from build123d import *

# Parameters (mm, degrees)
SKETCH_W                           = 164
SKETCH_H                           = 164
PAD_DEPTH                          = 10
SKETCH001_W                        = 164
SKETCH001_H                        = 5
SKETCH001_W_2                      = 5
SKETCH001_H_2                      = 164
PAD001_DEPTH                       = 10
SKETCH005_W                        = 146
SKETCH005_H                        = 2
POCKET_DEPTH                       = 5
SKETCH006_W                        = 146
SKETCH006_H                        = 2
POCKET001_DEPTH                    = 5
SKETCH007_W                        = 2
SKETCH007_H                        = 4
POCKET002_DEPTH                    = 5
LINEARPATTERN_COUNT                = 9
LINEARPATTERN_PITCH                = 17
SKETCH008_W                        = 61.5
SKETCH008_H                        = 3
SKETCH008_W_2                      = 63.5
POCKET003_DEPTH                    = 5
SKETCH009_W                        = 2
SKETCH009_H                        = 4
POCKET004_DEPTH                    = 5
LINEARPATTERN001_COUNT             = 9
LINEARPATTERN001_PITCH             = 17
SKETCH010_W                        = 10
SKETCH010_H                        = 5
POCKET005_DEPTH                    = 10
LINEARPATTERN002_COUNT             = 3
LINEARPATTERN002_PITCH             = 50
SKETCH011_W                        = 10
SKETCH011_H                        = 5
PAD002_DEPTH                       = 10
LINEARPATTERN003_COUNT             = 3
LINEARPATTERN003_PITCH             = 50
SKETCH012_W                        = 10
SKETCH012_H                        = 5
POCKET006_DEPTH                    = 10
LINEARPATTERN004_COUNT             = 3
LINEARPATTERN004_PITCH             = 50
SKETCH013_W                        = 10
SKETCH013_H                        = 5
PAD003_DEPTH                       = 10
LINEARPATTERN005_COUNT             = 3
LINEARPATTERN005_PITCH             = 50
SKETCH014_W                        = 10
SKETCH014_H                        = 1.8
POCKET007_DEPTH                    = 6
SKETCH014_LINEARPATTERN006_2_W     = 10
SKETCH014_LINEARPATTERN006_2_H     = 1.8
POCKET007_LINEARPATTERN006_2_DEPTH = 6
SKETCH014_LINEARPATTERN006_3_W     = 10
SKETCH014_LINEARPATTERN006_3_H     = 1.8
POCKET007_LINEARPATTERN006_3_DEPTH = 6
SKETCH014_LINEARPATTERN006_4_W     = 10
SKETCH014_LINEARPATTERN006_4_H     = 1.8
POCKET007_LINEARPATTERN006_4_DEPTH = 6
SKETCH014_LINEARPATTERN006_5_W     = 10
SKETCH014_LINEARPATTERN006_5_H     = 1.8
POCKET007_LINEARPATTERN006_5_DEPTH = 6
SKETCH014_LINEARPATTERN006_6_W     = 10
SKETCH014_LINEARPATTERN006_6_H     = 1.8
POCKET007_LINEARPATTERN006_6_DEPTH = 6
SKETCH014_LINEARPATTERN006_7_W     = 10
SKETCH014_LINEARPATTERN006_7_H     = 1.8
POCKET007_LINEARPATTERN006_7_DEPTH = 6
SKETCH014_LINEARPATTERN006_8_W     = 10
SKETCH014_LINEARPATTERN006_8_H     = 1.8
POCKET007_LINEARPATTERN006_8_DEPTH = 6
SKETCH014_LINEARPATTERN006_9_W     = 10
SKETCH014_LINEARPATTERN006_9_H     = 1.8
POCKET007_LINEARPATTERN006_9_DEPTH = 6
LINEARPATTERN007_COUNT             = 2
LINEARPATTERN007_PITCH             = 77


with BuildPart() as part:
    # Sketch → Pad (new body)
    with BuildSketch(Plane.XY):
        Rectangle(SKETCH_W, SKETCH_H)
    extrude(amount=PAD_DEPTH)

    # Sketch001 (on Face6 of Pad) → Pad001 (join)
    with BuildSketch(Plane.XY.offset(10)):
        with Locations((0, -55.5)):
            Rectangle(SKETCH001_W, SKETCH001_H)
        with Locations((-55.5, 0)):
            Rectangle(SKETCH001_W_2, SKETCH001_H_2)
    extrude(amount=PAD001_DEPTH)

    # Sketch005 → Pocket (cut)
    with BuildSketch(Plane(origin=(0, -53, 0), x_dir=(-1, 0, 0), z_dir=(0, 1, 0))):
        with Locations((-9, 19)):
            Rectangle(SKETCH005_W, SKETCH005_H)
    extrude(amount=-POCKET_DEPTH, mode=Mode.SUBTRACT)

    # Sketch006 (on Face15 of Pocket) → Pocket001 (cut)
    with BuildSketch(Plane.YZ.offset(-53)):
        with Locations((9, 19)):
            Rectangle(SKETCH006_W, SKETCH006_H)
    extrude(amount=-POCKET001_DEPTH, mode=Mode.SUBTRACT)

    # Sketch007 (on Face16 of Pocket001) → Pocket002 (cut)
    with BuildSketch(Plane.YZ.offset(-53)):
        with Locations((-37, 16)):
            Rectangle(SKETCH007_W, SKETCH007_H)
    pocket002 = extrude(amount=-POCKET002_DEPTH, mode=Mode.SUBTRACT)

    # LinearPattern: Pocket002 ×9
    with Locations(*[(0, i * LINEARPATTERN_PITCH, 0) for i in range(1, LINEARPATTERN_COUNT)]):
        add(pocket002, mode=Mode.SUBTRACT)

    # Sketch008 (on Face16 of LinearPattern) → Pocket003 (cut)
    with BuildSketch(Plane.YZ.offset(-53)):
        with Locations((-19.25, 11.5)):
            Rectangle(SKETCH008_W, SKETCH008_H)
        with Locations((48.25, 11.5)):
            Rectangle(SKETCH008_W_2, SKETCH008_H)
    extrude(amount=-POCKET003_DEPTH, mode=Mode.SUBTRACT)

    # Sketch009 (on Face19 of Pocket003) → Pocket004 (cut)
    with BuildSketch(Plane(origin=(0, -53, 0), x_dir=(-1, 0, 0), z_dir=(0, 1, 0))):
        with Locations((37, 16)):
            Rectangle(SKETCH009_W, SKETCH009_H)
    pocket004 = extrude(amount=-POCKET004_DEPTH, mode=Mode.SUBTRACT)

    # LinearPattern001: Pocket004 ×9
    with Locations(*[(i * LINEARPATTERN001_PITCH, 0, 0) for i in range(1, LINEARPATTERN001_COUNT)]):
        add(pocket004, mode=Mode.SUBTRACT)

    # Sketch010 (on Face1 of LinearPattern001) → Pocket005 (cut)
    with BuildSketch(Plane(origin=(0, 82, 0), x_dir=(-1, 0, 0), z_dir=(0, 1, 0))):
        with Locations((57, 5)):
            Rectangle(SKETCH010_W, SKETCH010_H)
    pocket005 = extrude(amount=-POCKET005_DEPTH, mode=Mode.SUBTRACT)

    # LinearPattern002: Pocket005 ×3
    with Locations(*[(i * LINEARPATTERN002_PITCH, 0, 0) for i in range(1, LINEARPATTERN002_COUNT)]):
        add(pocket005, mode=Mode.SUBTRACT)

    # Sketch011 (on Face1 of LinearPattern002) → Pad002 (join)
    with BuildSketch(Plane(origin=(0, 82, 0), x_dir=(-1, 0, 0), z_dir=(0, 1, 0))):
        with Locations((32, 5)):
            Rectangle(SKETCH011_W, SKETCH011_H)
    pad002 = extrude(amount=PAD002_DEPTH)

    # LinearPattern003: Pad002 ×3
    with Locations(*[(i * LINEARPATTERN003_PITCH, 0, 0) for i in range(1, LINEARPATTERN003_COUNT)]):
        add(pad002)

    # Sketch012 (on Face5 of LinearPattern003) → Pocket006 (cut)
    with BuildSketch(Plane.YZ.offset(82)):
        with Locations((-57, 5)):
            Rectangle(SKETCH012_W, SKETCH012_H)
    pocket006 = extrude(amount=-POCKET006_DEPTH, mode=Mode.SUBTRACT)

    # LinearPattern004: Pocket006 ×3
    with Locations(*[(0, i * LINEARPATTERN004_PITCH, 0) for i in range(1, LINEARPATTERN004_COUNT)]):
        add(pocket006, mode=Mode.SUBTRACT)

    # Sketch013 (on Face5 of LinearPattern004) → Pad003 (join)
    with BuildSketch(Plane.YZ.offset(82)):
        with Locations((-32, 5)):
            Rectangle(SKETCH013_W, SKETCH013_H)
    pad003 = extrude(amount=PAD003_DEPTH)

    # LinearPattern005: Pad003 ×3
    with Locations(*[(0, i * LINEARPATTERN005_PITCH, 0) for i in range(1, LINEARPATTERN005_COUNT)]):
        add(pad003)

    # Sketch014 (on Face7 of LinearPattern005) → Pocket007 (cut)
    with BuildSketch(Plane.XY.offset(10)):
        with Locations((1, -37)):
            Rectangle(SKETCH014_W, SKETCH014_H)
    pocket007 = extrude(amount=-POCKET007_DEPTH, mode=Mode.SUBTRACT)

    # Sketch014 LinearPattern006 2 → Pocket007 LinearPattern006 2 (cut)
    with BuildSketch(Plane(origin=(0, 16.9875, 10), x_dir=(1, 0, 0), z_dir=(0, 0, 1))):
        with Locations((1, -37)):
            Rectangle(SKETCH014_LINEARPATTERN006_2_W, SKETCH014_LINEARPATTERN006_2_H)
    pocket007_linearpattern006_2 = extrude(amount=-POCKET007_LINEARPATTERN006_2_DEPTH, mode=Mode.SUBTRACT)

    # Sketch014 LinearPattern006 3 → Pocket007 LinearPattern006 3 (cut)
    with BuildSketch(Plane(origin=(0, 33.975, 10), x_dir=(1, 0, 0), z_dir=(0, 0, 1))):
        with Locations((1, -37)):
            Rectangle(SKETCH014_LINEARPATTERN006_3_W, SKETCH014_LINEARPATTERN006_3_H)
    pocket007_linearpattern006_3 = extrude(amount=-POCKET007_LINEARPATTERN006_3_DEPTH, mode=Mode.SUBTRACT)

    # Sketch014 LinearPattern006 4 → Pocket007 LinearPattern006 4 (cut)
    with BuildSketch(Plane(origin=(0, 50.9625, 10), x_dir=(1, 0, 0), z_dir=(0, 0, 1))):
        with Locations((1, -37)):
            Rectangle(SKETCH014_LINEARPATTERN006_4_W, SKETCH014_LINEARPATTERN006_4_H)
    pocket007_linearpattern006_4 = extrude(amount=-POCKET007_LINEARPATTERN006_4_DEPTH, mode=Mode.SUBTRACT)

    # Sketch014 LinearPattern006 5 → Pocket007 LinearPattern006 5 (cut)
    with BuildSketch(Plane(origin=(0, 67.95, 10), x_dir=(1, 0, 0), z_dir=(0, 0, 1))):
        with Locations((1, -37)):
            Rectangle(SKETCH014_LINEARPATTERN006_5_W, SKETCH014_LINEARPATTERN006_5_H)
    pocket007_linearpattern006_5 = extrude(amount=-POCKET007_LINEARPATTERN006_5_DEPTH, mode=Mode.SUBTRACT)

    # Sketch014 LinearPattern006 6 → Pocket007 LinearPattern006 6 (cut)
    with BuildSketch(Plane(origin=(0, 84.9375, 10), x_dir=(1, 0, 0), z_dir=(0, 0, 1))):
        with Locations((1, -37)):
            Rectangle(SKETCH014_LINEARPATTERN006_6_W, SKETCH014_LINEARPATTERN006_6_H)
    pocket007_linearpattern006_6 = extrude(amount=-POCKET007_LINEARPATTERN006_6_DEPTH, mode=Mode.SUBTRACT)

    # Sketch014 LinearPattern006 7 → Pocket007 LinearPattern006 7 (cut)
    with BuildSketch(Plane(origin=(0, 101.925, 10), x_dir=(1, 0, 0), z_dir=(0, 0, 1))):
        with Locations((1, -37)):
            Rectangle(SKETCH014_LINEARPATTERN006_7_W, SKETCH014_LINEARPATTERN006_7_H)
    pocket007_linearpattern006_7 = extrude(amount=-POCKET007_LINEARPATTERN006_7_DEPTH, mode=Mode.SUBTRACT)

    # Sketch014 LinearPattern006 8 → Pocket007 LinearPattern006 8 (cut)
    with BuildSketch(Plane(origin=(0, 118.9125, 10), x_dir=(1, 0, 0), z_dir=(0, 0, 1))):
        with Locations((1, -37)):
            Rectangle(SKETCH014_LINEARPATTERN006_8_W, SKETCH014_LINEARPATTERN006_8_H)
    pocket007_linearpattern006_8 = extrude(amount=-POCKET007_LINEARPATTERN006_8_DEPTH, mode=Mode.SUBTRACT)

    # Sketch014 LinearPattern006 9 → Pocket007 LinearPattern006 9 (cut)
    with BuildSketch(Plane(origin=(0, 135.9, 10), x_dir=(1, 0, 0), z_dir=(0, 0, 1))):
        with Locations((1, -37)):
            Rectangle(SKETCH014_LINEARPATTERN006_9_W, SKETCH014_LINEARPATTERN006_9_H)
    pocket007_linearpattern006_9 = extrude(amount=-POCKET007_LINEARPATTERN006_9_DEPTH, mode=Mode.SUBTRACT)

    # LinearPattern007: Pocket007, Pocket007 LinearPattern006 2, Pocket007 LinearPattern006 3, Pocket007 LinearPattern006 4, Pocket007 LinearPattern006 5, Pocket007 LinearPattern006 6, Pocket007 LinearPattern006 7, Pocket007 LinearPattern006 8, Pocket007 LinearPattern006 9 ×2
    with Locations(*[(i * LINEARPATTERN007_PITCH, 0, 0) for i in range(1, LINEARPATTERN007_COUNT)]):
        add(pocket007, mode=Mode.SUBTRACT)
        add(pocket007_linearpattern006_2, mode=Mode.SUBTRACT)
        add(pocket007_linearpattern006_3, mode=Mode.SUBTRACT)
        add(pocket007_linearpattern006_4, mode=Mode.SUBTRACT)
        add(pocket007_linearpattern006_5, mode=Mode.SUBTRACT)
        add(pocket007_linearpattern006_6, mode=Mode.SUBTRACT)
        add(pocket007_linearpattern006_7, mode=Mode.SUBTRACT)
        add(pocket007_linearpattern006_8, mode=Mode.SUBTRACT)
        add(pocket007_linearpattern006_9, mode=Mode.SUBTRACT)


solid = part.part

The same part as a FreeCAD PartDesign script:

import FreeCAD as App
import Part
import Sketcher
from FreeCAD import Vector
Q = App.Units.Quantity


def add_polygon(sketch, points):
    """Adds a closed chain of lines whose ends are joined by coincident constraints."""
    first, n = sketch.GeometryCount, len(points)
    for a, b in zip(points, points[1:] + points[:1]):
        sketch.addGeometry(Part.LineSegment(App.Vector(*a, 0), App.Vector(*b, 0)), False)
    for i in range(n):
        sketch.addConstraint(Sketcher.Constraint("Coincident", first + i, 2, first + (i + 1) % n, 1))

doc = App.newDocument("Part")
body = doc.addObject("PartDesign::Body", "Body")

sketch1 = body.newObject("Sketcher::SketchObject", "Sketch")
sketch1.AttachmentSupport = (doc.getObject("XY_Plane"), [""])
sketch1.MapMode = "FlatFace"
add_polygon(sketch1, [(-82, 82), (-82, -82), (82, -82), (82, 82)])
sketch1.addConstraint(Sketcher.Constraint("Vertical", 0))
sketch1.addConstraint(Sketcher.Constraint("Horizontal", 1))
sketch1.addConstraint(Sketcher.Constraint("Vertical", 2))
sketch1.addConstraint(Sketcher.Constraint("Horizontal", 3))
sketch1.addConstraint(Sketcher.Constraint("Symmetric", 0, 2, 2, 2, -1, 1))
sketch1.addConstraint(Sketcher.Constraint("Equal", 3, 0))
sketch1.addConstraint(Sketcher.Constraint("DistanceX", 1, 1, 1, 2, Q("164 mm")))
pad1 = body.newObject("PartDesign::Pad", "Pad")
pad1.Profile = sketch1
pad1.Length = 10

sketch2 = body.newObject("Sketcher::SketchObject", "Sketch001")
sketch2.AttachmentSupport = (doc.getObject("XY_Plane"), [""])
sketch2.MapMode = "FlatFace"
sketch2.AttachmentOffset = App.Placement(Vector(0, 0, 10), App.Rotation())
add_polygon(sketch2, [(-82, -53), (-82, -58), (-58, -58), (-58, -82), (-53, -82), (-53, -58), (82, -58), (82, -53), (-53, -53), (-53, 82), (-58, 82), (-58, -53)])
sketch2.addConstraint(Sketcher.Constraint("Vertical", 0))
sketch2.addConstraint(Sketcher.Constraint("Horizontal", 1))
sketch2.addConstraint(Sketcher.Constraint("Vertical", 2))
sketch2.addConstraint(Sketcher.Constraint("Horizontal", 3))
sketch2.addConstraint(Sketcher.Constraint("Vertical", 4))
sketch2.addConstraint(Sketcher.Constraint("Horizontal", 5))
sketch2.addConstraint(Sketcher.Constraint("Vertical", 6))
sketch2.addConstraint(Sketcher.Constraint("Horizontal", 7))
sketch2.addConstraint(Sketcher.Constraint("Vertical", 8))
sketch2.addConstraint(Sketcher.Constraint("Horizontal", 9))
sketch2.addConstraint(Sketcher.Constraint("Vertical", 10))
sketch2.addConstraint(Sketcher.Constraint("Horizontal", 11))
sketch2.addConstraint(Sketcher.Constraint("Symmetric", 0, 2, 5, 2, -2))
sketch2.addConstraint(Sketcher.Constraint("Symmetric", 3, 2, 8, 2, -1))
sketch2.addConstraint(Sketcher.Constraint("Horizontal", 7, 2, 10, 2))
sketch2.addConstraint(Sketcher.Constraint("Vertical", 2, 2, 9, 2))
sketch2.addConstraint(Sketcher.Constraint("Equal", 9, 0))
sketch2.addConstraint(Sketcher.Constraint("Equal", 11, 2))
sketch2.addConstraint(Sketcher.Constraint("Equal", 7, 8))
sketch2.addConstraint(Sketcher.Constraint("DistanceX", 1, 1, 1, 2, Q("24 mm")))
sketch2.addConstraint(Sketcher.Constraint("DistanceX", 3, 1, 3, 2, Q("5 mm")))
sketch2.addConstraint(Sketcher.Constraint("DistanceX", 5, 1, 5, 2, Q("135 mm")))
pad2 = body.newObject("PartDesign::Pad", "Pad001")
pad2.Profile = sketch2
pad2.Length = 10

sketch3 = body.newObject("Sketcher::SketchObject", "Sketch002")
sketch3.AttachmentSupport = (doc.getObject("XZ_Plane"), [""])
sketch3.MapMode = "FlatFace"
sketch3.AttachmentOffset = App.Placement(Vector(0, 0, 53), App.Rotation())
add_polygon(sketch3, [(82, 20), (82, 18), (-64, 18), (-64, 20)])
sketch3.addConstraint(Sketcher.Constraint("Vertical", 0))
sketch3.addConstraint(Sketcher.Constraint("Horizontal", 1))
sketch3.addConstraint(Sketcher.Constraint("Vertical", 2))
sketch3.addConstraint(Sketcher.Constraint("Horizontal", 3))
sketch3.addConstraint(Sketcher.Constraint("DistanceX", 1, 2, 1, 1, Q("146 mm")))
sketch3.addConstraint(Sketcher.Constraint("DistanceY", 0, 2, 0, 1, Q("2 mm")))
sketch3.addConstraint(Sketcher.Constraint("DistanceX", -1, 1, 0, 2, Q("82 mm")))
sketch3.addConstraint(Sketcher.Constraint("DistanceY", -1, 1, 0, 2, Q("18 mm")))
pocket1 = body.newObject("PartDesign::Pocket", "Pocket")
pocket1.Profile = sketch3
pocket1.Length = 5
pocket1.Reversed = True

sketch4 = body.newObject("Sketcher::SketchObject", "Sketch003")
sketch4.AttachmentSupport = (doc.getObject("YZ_Plane"), [""])
sketch4.MapMode = "FlatFace"
sketch4.AttachmentOffset = App.Placement(Vector(0, 0, -53), App.Rotation())
add_polygon(sketch4, [(-64, 20), (-64, 18), (82, 18), (82, 20)])
sketch4.addConstraint(Sketcher.Constraint("Vertical", 0))
sketch4.addConstraint(Sketcher.Constraint("Horizontal", 1))
sketch4.addConstraint(Sketcher.Constraint("Vertical", 2))
sketch4.addConstraint(Sketcher.Constraint("Horizontal", 3))
sketch4.addConstraint(Sketcher.Constraint("DistanceX", 1, 1, 1, 2, Q("146 mm")))
sketch4.addConstraint(Sketcher.Constraint("DistanceY", 0, 2, 0, 1, Q("2 mm")))
sketch4.addConstraint(Sketcher.Constraint("DistanceX", 0, 2, -1, 1, Q("64 mm")))
sketch4.addConstraint(Sketcher.Constraint("DistanceY", -1, 1, 0, 2, Q("18 mm")))
pocket2 = body.newObject("PartDesign::Pocket", "Pocket001")
pocket2.Profile = sketch4
pocket2.Length = 5

sketch5 = body.newObject("Sketcher::SketchObject", "Sketch004")
sketch5.AttachmentSupport = (doc.getObject("YZ_Plane"), [""])
sketch5.MapMode = "FlatFace"
sketch5.AttachmentOffset = App.Placement(Vector(0, 0, -53), App.Rotation())
add_polygon(sketch5, [(-38, 18), (-38, 14), (-36, 14), (-36, 18)])
sketch5.addConstraint(Sketcher.Constraint("Vertical", 0))
sketch5.addConstraint(Sketcher.Constraint("Horizontal", 1))
sketch5.addConstraint(Sketcher.Constraint("Vertical", 2))
sketch5.addConstraint(Sketcher.Constraint("Horizontal", 3))
sketch5.addConstraint(Sketcher.Constraint("DistanceX", 1, 1, 1, 2, Q("2 mm")))
sketch5.addConstraint(Sketcher.Constraint("DistanceY", 0, 2, 0, 1, Q("4 mm")))
sketch5.addConstraint(Sketcher.Constraint("DistanceX", 0, 2, -1, 1, Q("38 mm")))
sketch5.addConstraint(Sketcher.Constraint("DistanceY", -1, 1, 0, 2, Q("14 mm")))
pocket3 = body.newObject("PartDesign::Pocket", "Pocket002")
pocket3.Profile = sketch5
pocket3.Length = 5
doc.recompute()

linearpattern = body.newObject("PartDesign::LinearPattern", "LinearPattern")
linearpattern.Originals = [pocket3]
linearpattern.Direction = (doc.getObject("Y_Axis"), [""])
linearpattern.Mode = "offset"
linearpattern.Offset = 17
linearpattern.Occurrences = 9
body.Tip = linearpattern

sketch6 = body.newObject("Sketcher::SketchObject", "Sketch005")
sketch6.AttachmentSupport = (doc.getObject("YZ_Plane"), [""])
sketch6.MapMode = "FlatFace"
sketch6.AttachmentOffset = App.Placement(Vector(0, 0, -53), App.Rotation())
add_polygon(sketch6, [(-50, 13), (-50, 10), (11.5, 10), (11.5, 13)])
add_polygon(sketch6, [(16.5, 13), (16.5, 10), (80, 10), (80, 13)])
sketch6.addConstraint(Sketcher.Constraint("Vertical", 0))
sketch6.addConstraint(Sketcher.Constraint("Horizontal", 1))
sketch6.addConstraint(Sketcher.Constraint("Vertical", 2))
sketch6.addConstraint(Sketcher.Constraint("Horizontal", 3))
sketch6.addConstraint(Sketcher.Constraint("Vertical", 4))
sketch6.addConstraint(Sketcher.Constraint("Horizontal", 5))
sketch6.addConstraint(Sketcher.Constraint("Vertical", 6))
sketch6.addConstraint(Sketcher.Constraint("Horizontal", 7))
sketch6.addConstraint(Sketcher.Constraint("Horizontal", 1, 2, 4, 2))
sketch6.addConstraint(Sketcher.Constraint("Horizontal", 3, 2, 6, 2))
sketch6.addConstraint(Sketcher.Constraint("DistanceY", 0, 2, 0, 1, Q("3 mm")))
sketch6.addConstraint(Sketcher.Constraint("DistanceX", 1, 1, 1, 2, Q("61.5 mm")))
sketch6.addConstraint(Sketcher.Constraint("DistanceX", 5, 1, 5, 2, Q("63.5 mm")))
sketch6.addConstraint(Sketcher.Constraint("DistanceX", 0, 2, -1, 1, Q("50 mm")))
sketch6.addConstraint(Sketcher.Constraint("DistanceY", -1, 1, 0, 2, Q("10 mm")))
sketch6.addConstraint(Sketcher.Constraint("DistanceX", -1, 1, 5, 2, Q("80 mm")))
pocket4 = body.newObject("PartDesign::Pocket", "Pocket003")
pocket4.Profile = sketch6
pocket4.Length = 5

sketch7 = body.newObject("Sketcher::SketchObject", "Sketch006")
sketch7.AttachmentSupport = (doc.getObject("XZ_Plane"), [""])
sketch7.MapMode = "FlatFace"
sketch7.AttachmentOffset = App.Placement(Vector(0, 0, 53), App.Rotation())
add_polygon(sketch7, [(-36, 18), (-36, 14), (-38, 14), (-38, 18)])
sketch7.addConstraint(Sketcher.Constraint("Vertical", 0))
sketch7.addConstraint(Sketcher.Constraint("Horizontal", 1))
sketch7.addConstraint(Sketcher.Constraint("Vertical", 2))
sketch7.addConstraint(Sketcher.Constraint("Horizontal", 3))
sketch7.addConstraint(Sketcher.Constraint("DistanceX", 1, 2, 1, 1, Q("2 mm")))
sketch7.addConstraint(Sketcher.Constraint("DistanceY", 0, 2, 0, 1, Q("4 mm")))
sketch7.addConstraint(Sketcher.Constraint("DistanceX", 0, 2, -1, 1, Q("36 mm")))
sketch7.addConstraint(Sketcher.Constraint("DistanceY", -1, 1, 0, 2, Q("14 mm")))
pocket5 = body.newObject("PartDesign::Pocket", "Pocket004")
pocket5.Profile = sketch7
pocket5.Length = 5
pocket5.Reversed = True
doc.recompute()

linearpattern2 = body.newObject("PartDesign::LinearPattern", "LinearPattern001")
linearpattern2.Originals = [pocket5]
linearpattern2.Direction = (doc.getObject("X_Axis"), [""])
linearpattern2.Mode = "offset"
linearpattern2.Offset = 17
linearpattern2.Occurrences = 9
body.Tip = linearpattern2

sketch8 = body.newObject("Sketcher::SketchObject", "Sketch007")
sketch8.AttachmentSupport = (doc.getObject("XZ_Plane"), [""])
sketch8.MapMode = "FlatFace"
sketch8.AttachmentOffset = App.Placement(Vector(0, 0, -82), App.Rotation())
add_polygon(sketch8, [(-52, 8), (-52, 2), (-62, 2), (-62, 8)])
sketch8.addConstraint(Sketcher.Constraint("Vertical", 0))
sketch8.addConstraint(Sketcher.Constraint("Horizontal", 1))
sketch8.addConstraint(Sketcher.Constraint("Vertical", 2))
sketch8.addConstraint(Sketcher.Constraint("Horizontal", 3))
sketch8.addConstraint(Sketcher.Constraint("DistanceX", 1, 2, 1, 1, Q("10 mm")))
sketch8.addConstraint(Sketcher.Constraint("DistanceY", 0, 2, 0, 1, Q("5 mm")))
sketch8.addConstraint(Sketcher.Constraint("DistanceX", 0, 2, -1, 1, Q("52 mm")))
sketch8.addConstraint(Sketcher.Constraint("DistanceY", -1, 1, 0, 2, Q("2.5 mm")))
pocket6 = body.newObject("PartDesign::Pocket", "Pocket005")
pocket6.Profile = sketch8
pocket6.Length = 10
pocket6.Reversed = True
doc.recompute()

linearpattern3 = body.newObject("PartDesign::LinearPattern", "LinearPattern002")
linearpattern3.Originals = [pocket6]
linearpattern3.Direction = (doc.getObject("X_Axis"), [""])
linearpattern3.Mode = "offset"
linearpattern3.Offset = 50
linearpattern3.Occurrences = 3
body.Tip = linearpattern3

sketch9 = body.newObject("Sketcher::SketchObject", "Sketch008")
sketch9.AttachmentSupport = (doc.getObject("XZ_Plane"), [""])
sketch9.MapMode = "FlatFace"
sketch9.AttachmentOffset = App.Placement(Vector(0, 0, -82), App.Rotation())
add_polygon(sketch9, [(-27, 8), (-27, 2), (-37, 2), (-37, 8)])
sketch9.addConstraint(Sketcher.Constraint("Vertical", 0))
sketch9.addConstraint(Sketcher.Constraint("Horizontal", 1))
sketch9.addConstraint(Sketcher.Constraint("Vertical", 2))
sketch9.addConstraint(Sketcher.Constraint("Horizontal", 3))
sketch9.addConstraint(Sketcher.Constraint("DistanceX", 1, 2, 1, 1, Q("10 mm")))
sketch9.addConstraint(Sketcher.Constraint("DistanceY", 0, 2, 0, 1, Q("5 mm")))
sketch9.addConstraint(Sketcher.Constraint("DistanceX", 0, 2, -1, 1, Q("27 mm")))
sketch9.addConstraint(Sketcher.Constraint("DistanceY", -1, 1, 0, 2, Q("2.5 mm")))
pad3 = body.newObject("PartDesign::Pad", "Pad002")
pad3.Profile = sketch9
pad3.Length = 10
pad3.Reversed = True
doc.recompute()

linearpattern4 = body.newObject("PartDesign::LinearPattern", "LinearPattern003")
linearpattern4.Originals = [pad3]
linearpattern4.Direction = (doc.getObject("X_Axis"), [""])
linearpattern4.Mode = "offset"
linearpattern4.Offset = 50
linearpattern4.Occurrences = 3
body.Tip = linearpattern4

sketch10 = body.newObject("Sketcher::SketchObject", "Sketch009")
sketch10.AttachmentSupport = (doc.getObject("YZ_Plane"), [""])
sketch10.MapMode = "FlatFace"
sketch10.AttachmentOffset = App.Placement(Vector(0, 0, 82), App.Rotation())
add_polygon(sketch10, [(-62, 8), (-62, 2), (-52, 2), (-52, 8)])
sketch10.addConstraint(Sketcher.Constraint("Vertical", 0))
sketch10.addConstraint(Sketcher.Constraint("Horizontal", 1))
sketch10.addConstraint(Sketcher.Constraint("Vertical", 2))
sketch10.addConstraint(Sketcher.Constraint("Horizontal", 3))
sketch10.addConstraint(Sketcher.Constraint("DistanceX", 1, 1, 1, 2, Q("10 mm")))
sketch10.addConstraint(Sketcher.Constraint("DistanceY", 0, 2, 0, 1, Q("5 mm")))
sketch10.addConstraint(Sketcher.Constraint("DistanceX", 0, 2, -1, 1, Q("62 mm")))
sketch10.addConstraint(Sketcher.Constraint("DistanceY", -1, 1, 0, 2, Q("2.5 mm")))
pocket7 = body.newObject("PartDesign::Pocket", "Pocket006")
pocket7.Profile = sketch10
pocket7.Length = 10
doc.recompute()

linearpattern5 = body.newObject("PartDesign::LinearPattern", "LinearPattern004")
linearpattern5.Originals = [pocket7]
linearpattern5.Direction = (doc.getObject("Y_Axis"), [""])
linearpattern5.Mode = "offset"
linearpattern5.Offset = 50
linearpattern5.Occurrences = 3
body.Tip = linearpattern5

sketch11 = body.newObject("Sketcher::SketchObject", "Sketch010")
sketch11.AttachmentSupport = (doc.getObject("YZ_Plane"), [""])
sketch11.MapMode = "FlatFace"
sketch11.AttachmentOffset = App.Placement(Vector(0, 0, 82), App.Rotation())
add_polygon(sketch11, [(-37, 8), (-37, 2), (-27, 2), (-27, 8)])
sketch11.addConstraint(Sketcher.Constraint("Vertical", 0))
sketch11.addConstraint(Sketcher.Constraint("Horizontal", 1))
sketch11.addConstraint(Sketcher.Constraint("Vertical", 2))
sketch11.addConstraint(Sketcher.Constraint("Horizontal", 3))
sketch11.addConstraint(Sketcher.Constraint("DistanceX", 1, 1, 1, 2, Q("10 mm")))
sketch11.addConstraint(Sketcher.Constraint("DistanceY", 0, 2, 0, 1, Q("5 mm")))
sketch11.addConstraint(Sketcher.Constraint("DistanceX", 0, 2, -1, 1, Q("37 mm")))
sketch11.addConstraint(Sketcher.Constraint("DistanceY", -1, 1, 0, 2, Q("2.5 mm")))
pad4 = body.newObject("PartDesign::Pad", "Pad003")
pad4.Profile = sketch11
pad4.Length = 10
doc.recompute()

linearpattern6 = body.newObject("PartDesign::LinearPattern", "LinearPattern005")
linearpattern6.Originals = [pad4]
linearpattern6.Direction = (doc.getObject("Y_Axis"), [""])
linearpattern6.Mode = "offset"
linearpattern6.Offset = 50
linearpattern6.Occurrences = 3
body.Tip = linearpattern6

sketch12 = body.newObject("Sketcher::SketchObject", "Sketch011")
sketch12.AttachmentSupport = (doc.getObject("XY_Plane"), [""])
sketch12.MapMode = "FlatFace"
sketch12.AttachmentOffset = App.Placement(Vector(0, 0, 10), App.Rotation())
add_polygon(sketch12, [(-4, -36.1), (-4, -37.9), (6, -37.9), (6, -36.1)])
sketch12.addConstraint(Sketcher.Constraint("Vertical", 0))
sketch12.addConstraint(Sketcher.Constraint("Horizontal", 1))
sketch12.addConstraint(Sketcher.Constraint("Vertical", 2))
sketch12.addConstraint(Sketcher.Constraint("Horizontal", 3))
sketch12.addConstraint(Sketcher.Constraint("DistanceX", 1, 1, 1, 2, Q("10 mm")))
sketch12.addConstraint(Sketcher.Constraint("DistanceY", 0, 2, 0, 1, Q("1.8 mm")))
sketch12.addConstraint(Sketcher.Constraint("DistanceX", 0, 2, -1, 1, Q("4 mm")))
sketch12.addConstraint(Sketcher.Constraint("DistanceY", 0, 2, -1, 1, Q("37.9 mm")))
pocket8 = body.newObject("PartDesign::Pocket", "Pocket007")
pocket8.Profile = sketch12
pocket8.Length = 6

sketch13 = body.newObject("Sketcher::SketchObject", "Sketch012")
sketch13.AttachmentSupport = (doc.getObject("XY_Plane"), [""])
sketch13.MapMode = "FlatFace"
sketch13.AttachmentOffset = App.Placement(Vector(0, 0, 10), App.Rotation())
add_polygon(sketch13, [(-4, -19.1), (-4, -20.9), (6, -20.9), (6, -19.1)])
sketch13.addConstraint(Sketcher.Constraint("Vertical", 0))
sketch13.addConstraint(Sketcher.Constraint("Horizontal", 1))
sketch13.addConstraint(Sketcher.Constraint("Vertical", 2))
sketch13.addConstraint(Sketcher.Constraint("Horizontal", 3))
sketch13.addConstraint(Sketcher.Constraint("DistanceX", 1, 1, 1, 2, Q("10 mm")))
sketch13.addConstraint(Sketcher.Constraint("DistanceY", 0, 2, 0, 1, Q("1.8 mm")))
sketch13.addConstraint(Sketcher.Constraint("DistanceX", 0, 2, -1, 1, Q("4 mm")))
sketch13.addConstraint(Sketcher.Constraint("DistanceY", 0, 2, -1, 1, Q("20.9125 mm")))
pocket9 = body.newObject("PartDesign::Pocket", "Pocket008")
pocket9.Profile = sketch13
pocket9.Length = 6

sketch14 = body.newObject("Sketcher::SketchObject", "Sketch013")
sketch14.AttachmentSupport = (doc.getObject("XY_Plane"), [""])
sketch14.MapMode = "FlatFace"
sketch14.AttachmentOffset = App.Placement(Vector(0, 0, 10), App.Rotation())
add_polygon(sketch14, [(-4, -2.1), (-4, -3.9), (6, -3.9), (6, -2.1)])
sketch14.addConstraint(Sketcher.Constraint("Vertical", 0))
sketch14.addConstraint(Sketcher.Constraint("Horizontal", 1))
sketch14.addConstraint(Sketcher.Constraint("Vertical", 2))
sketch14.addConstraint(Sketcher.Constraint("Horizontal", 3))
sketch14.addConstraint(Sketcher.Constraint("DistanceX", 1, 1, 1, 2, Q("10 mm")))
sketch14.addConstraint(Sketcher.Constraint("DistanceY", 0, 2, 0, 1, Q("1.8 mm")))
sketch14.addConstraint(Sketcher.Constraint("DistanceX", 0, 2, -1, 1, Q("4 mm")))
sketch14.addConstraint(Sketcher.Constraint("DistanceY", 0, 2, -1, 1, Q("3.925 mm")))
pocket10 = body.newObject("PartDesign::Pocket", "Pocket009")
pocket10.Profile = sketch14
pocket10.Length = 6

sketch15 = body.newObject("Sketcher::SketchObject", "Sketch014")
sketch15.AttachmentSupport = (doc.getObject("XY_Plane"), [""])
sketch15.MapMode = "FlatFace"
sketch15.AttachmentOffset = App.Placement(Vector(0, 0, 10), App.Rotation())
add_polygon(sketch15, [(-4, 14.9), (-4, 13.1), (6, 13.1), (6, 14.9)])
sketch15.addConstraint(Sketcher.Constraint("Vertical", 0))
sketch15.addConstraint(Sketcher.Constraint("Horizontal", 1))
sketch15.addConstraint(Sketcher.Constraint("Vertical", 2))
sketch15.addConstraint(Sketcher.Constraint("Horizontal", 3))
sketch15.addConstraint(Sketcher.Constraint("DistanceX", 1, 1, 1, 2, Q("10 mm")))
sketch15.addConstraint(Sketcher.Constraint("DistanceY", 0, 2, 0, 1, Q("1.8 mm")))
sketch15.addConstraint(Sketcher.Constraint("DistanceX", 0, 2, -1, 1, Q("4 mm")))
sketch15.addConstraint(Sketcher.Constraint("DistanceY", -1, 1, 0, 2, Q("13.0625 mm")))
pocket11 = body.newObject("PartDesign::Pocket", "Pocket010")
pocket11.Profile = sketch15
pocket11.Length = 6

sketch16 = body.newObject("Sketcher::SketchObject", "Sketch015")
sketch16.AttachmentSupport = (doc.getObject("XY_Plane"), [""])
sketch16.MapMode = "FlatFace"
sketch16.AttachmentOffset = App.Placement(Vector(0, 0, 10), App.Rotation())
add_polygon(sketch16, [(-4, 31.9), (-4, 30.1), (6, 30.1), (6, 31.9)])
sketch16.addConstraint(Sketcher.Constraint("Vertical", 0))
sketch16.addConstraint(Sketcher.Constraint("Horizontal", 1))
sketch16.addConstraint(Sketcher.Constraint("Vertical", 2))
sketch16.addConstraint(Sketcher.Constraint("Horizontal", 3))
sketch16.addConstraint(Sketcher.Constraint("DistanceX", 1, 1, 1, 2, Q("10 mm")))
sketch16.addConstraint(Sketcher.Constraint("DistanceY", 0, 2, 0, 1, Q("1.8 mm")))
sketch16.addConstraint(Sketcher.Constraint("DistanceX", 0, 2, -1, 1, Q("4 mm")))
sketch16.addConstraint(Sketcher.Constraint("DistanceY", -1, 1, 0, 2, Q("30.05 mm")))
pocket12 = body.newObject("PartDesign::Pocket", "Pocket011")
pocket12.Profile = sketch16
pocket12.Length = 6

sketch17 = body.newObject("Sketcher::SketchObject", "Sketch016")
sketch17.AttachmentSupport = (doc.getObject("XY_Plane"), [""])
sketch17.MapMode = "FlatFace"
sketch17.AttachmentOffset = App.Placement(Vector(0, 0, 10), App.Rotation())
add_polygon(sketch17, [(-4, 48.8), (-4, 47), (6, 47), (6, 48.8)])
sketch17.addConstraint(Sketcher.Constraint("Vertical", 0))
sketch17.addConstraint(Sketcher.Constraint("Horizontal", 1))
sketch17.addConstraint(Sketcher.Constraint("Vertical", 2))
sketch17.addConstraint(Sketcher.Constraint("Horizontal", 3))
sketch17.addConstraint(Sketcher.Constraint("DistanceX", 1, 1, 1, 2, Q("10 mm")))
sketch17.addConstraint(Sketcher.Constraint("DistanceY", 0, 2, 0, 1, Q("1.8 mm")))
sketch17.addConstraint(Sketcher.Constraint("DistanceX", 0, 2, -1, 1, Q("4 mm")))
sketch17.addConstraint(Sketcher.Constraint("DistanceY", -1, 1, 0, 2, Q("47.0375 mm")))
pocket13 = body.newObject("PartDesign::Pocket", "Pocket012")
pocket13.Profile = sketch17
pocket13.Length = 6

sketch18 = body.newObject("Sketcher::SketchObject", "Sketch017")
sketch18.AttachmentSupport = (doc.getObject("XY_Plane"), [""])
sketch18.MapMode = "FlatFace"
sketch18.AttachmentOffset = App.Placement(Vector(0, 0, 10), App.Rotation())
add_polygon(sketch18, [(-4, 65.8), (-4, 64), (6, 64), (6, 65.8)])
sketch18.addConstraint(Sketcher.Constraint("Vertical", 0))
sketch18.addConstraint(Sketcher.Constraint("Horizontal", 1))
sketch18.addConstraint(Sketcher.Constraint("Vertical", 2))
sketch18.addConstraint(Sketcher.Constraint("Horizontal", 3))
sketch18.addConstraint(Sketcher.Constraint("DistanceX", 1, 1, 1, 2, Q("10 mm")))
sketch18.addConstraint(Sketcher.Constraint("DistanceY", 0, 2, 0, 1, Q("1.8 mm")))
sketch18.addConstraint(Sketcher.Constraint("DistanceX", 0, 2, -1, 1, Q("4 mm")))
sketch18.addConstraint(Sketcher.Constraint("DistanceY", -1, 1, 0, 2, Q("64.025 mm")))
pocket14 = body.newObject("PartDesign::Pocket", "Pocket013")
pocket14.Profile = sketch18
pocket14.Length = 6

sketch19 = body.newObject("Sketcher::SketchObject", "Sketch018")
sketch19.AttachmentSupport = (doc.getObject("XY_Plane"), [""])
sketch19.MapMode = "FlatFace"
sketch19.AttachmentOffset = App.Placement(Vector(0, 0, 10), App.Rotation())
add_polygon(sketch19, [(-4, 82.8), (-4, 81), (6, 81), (6, 82.8)])
sketch19.addConstraint(Sketcher.Constraint("Vertical", 0))
sketch19.addConstraint(Sketcher.Constraint("Horizontal", 1))
sketch19.addConstraint(Sketcher.Constraint("Vertical", 2))
sketch19.addConstraint(Sketcher.Constraint("Horizontal", 3))
sketch19.addConstraint(Sketcher.Constraint("DistanceX", 1, 1, 1, 2, Q("10 mm")))
sketch19.addConstraint(Sketcher.Constraint("DistanceY", 0, 2, 0, 1, Q("1.8 mm")))
sketch19.addConstraint(Sketcher.Constraint("DistanceX", 0, 2, -1, 1, Q("4 mm")))
sketch19.addConstraint(Sketcher.Constraint("DistanceY", -1, 1, 0, 2, Q("81.0125 mm")))
pocket15 = body.newObject("PartDesign::Pocket", "Pocket014")
pocket15.Profile = sketch19
pocket15.Length = 6

sketch20 = body.newObject("Sketcher::SketchObject", "Sketch019")
sketch20.AttachmentSupport = (doc.getObject("XY_Plane"), [""])
sketch20.MapMode = "FlatFace"
sketch20.AttachmentOffset = App.Placement(Vector(0, 0, 10), App.Rotation())
add_polygon(sketch20, [(-4, 99.8), (-4, 98), (6, 98), (6, 99.8)])
sketch20.addConstraint(Sketcher.Constraint("Vertical", 0))
sketch20.addConstraint(Sketcher.Constraint("Horizontal", 1))
sketch20.addConstraint(Sketcher.Constraint("Vertical", 2))
sketch20.addConstraint(Sketcher.Constraint("Horizontal", 3))
sketch20.addConstraint(Sketcher.Constraint("DistanceX", 1, 1, 1, 2, Q("10 mm")))
sketch20.addConstraint(Sketcher.Constraint("DistanceY", 0, 2, 0, 1, Q("1.8 mm")))
sketch20.addConstraint(Sketcher.Constraint("DistanceX", 0, 2, -1, 1, Q("4 mm")))
sketch20.addConstraint(Sketcher.Constraint("DistanceY", -1, 1, 0, 2, Q("98 mm")))
pocket16 = body.newObject("PartDesign::Pocket", "Pocket015")
pocket16.Profile = sketch20
pocket16.Length = 6
doc.recompute()

linearpattern7 = body.newObject("PartDesign::LinearPattern", "LinearPattern006")
linearpattern7.Originals = [pocket8, pocket9, pocket10, pocket11, pocket12, pocket13, pocket14, pocket15, pocket16]
linearpattern7.Direction = (doc.getObject("X_Axis"), [""])
linearpattern7.Mode = "offset"
linearpattern7.Offset = 77
linearpattern7.Occurrences = 2
body.Tip = linearpattern7

doc.recompute()
